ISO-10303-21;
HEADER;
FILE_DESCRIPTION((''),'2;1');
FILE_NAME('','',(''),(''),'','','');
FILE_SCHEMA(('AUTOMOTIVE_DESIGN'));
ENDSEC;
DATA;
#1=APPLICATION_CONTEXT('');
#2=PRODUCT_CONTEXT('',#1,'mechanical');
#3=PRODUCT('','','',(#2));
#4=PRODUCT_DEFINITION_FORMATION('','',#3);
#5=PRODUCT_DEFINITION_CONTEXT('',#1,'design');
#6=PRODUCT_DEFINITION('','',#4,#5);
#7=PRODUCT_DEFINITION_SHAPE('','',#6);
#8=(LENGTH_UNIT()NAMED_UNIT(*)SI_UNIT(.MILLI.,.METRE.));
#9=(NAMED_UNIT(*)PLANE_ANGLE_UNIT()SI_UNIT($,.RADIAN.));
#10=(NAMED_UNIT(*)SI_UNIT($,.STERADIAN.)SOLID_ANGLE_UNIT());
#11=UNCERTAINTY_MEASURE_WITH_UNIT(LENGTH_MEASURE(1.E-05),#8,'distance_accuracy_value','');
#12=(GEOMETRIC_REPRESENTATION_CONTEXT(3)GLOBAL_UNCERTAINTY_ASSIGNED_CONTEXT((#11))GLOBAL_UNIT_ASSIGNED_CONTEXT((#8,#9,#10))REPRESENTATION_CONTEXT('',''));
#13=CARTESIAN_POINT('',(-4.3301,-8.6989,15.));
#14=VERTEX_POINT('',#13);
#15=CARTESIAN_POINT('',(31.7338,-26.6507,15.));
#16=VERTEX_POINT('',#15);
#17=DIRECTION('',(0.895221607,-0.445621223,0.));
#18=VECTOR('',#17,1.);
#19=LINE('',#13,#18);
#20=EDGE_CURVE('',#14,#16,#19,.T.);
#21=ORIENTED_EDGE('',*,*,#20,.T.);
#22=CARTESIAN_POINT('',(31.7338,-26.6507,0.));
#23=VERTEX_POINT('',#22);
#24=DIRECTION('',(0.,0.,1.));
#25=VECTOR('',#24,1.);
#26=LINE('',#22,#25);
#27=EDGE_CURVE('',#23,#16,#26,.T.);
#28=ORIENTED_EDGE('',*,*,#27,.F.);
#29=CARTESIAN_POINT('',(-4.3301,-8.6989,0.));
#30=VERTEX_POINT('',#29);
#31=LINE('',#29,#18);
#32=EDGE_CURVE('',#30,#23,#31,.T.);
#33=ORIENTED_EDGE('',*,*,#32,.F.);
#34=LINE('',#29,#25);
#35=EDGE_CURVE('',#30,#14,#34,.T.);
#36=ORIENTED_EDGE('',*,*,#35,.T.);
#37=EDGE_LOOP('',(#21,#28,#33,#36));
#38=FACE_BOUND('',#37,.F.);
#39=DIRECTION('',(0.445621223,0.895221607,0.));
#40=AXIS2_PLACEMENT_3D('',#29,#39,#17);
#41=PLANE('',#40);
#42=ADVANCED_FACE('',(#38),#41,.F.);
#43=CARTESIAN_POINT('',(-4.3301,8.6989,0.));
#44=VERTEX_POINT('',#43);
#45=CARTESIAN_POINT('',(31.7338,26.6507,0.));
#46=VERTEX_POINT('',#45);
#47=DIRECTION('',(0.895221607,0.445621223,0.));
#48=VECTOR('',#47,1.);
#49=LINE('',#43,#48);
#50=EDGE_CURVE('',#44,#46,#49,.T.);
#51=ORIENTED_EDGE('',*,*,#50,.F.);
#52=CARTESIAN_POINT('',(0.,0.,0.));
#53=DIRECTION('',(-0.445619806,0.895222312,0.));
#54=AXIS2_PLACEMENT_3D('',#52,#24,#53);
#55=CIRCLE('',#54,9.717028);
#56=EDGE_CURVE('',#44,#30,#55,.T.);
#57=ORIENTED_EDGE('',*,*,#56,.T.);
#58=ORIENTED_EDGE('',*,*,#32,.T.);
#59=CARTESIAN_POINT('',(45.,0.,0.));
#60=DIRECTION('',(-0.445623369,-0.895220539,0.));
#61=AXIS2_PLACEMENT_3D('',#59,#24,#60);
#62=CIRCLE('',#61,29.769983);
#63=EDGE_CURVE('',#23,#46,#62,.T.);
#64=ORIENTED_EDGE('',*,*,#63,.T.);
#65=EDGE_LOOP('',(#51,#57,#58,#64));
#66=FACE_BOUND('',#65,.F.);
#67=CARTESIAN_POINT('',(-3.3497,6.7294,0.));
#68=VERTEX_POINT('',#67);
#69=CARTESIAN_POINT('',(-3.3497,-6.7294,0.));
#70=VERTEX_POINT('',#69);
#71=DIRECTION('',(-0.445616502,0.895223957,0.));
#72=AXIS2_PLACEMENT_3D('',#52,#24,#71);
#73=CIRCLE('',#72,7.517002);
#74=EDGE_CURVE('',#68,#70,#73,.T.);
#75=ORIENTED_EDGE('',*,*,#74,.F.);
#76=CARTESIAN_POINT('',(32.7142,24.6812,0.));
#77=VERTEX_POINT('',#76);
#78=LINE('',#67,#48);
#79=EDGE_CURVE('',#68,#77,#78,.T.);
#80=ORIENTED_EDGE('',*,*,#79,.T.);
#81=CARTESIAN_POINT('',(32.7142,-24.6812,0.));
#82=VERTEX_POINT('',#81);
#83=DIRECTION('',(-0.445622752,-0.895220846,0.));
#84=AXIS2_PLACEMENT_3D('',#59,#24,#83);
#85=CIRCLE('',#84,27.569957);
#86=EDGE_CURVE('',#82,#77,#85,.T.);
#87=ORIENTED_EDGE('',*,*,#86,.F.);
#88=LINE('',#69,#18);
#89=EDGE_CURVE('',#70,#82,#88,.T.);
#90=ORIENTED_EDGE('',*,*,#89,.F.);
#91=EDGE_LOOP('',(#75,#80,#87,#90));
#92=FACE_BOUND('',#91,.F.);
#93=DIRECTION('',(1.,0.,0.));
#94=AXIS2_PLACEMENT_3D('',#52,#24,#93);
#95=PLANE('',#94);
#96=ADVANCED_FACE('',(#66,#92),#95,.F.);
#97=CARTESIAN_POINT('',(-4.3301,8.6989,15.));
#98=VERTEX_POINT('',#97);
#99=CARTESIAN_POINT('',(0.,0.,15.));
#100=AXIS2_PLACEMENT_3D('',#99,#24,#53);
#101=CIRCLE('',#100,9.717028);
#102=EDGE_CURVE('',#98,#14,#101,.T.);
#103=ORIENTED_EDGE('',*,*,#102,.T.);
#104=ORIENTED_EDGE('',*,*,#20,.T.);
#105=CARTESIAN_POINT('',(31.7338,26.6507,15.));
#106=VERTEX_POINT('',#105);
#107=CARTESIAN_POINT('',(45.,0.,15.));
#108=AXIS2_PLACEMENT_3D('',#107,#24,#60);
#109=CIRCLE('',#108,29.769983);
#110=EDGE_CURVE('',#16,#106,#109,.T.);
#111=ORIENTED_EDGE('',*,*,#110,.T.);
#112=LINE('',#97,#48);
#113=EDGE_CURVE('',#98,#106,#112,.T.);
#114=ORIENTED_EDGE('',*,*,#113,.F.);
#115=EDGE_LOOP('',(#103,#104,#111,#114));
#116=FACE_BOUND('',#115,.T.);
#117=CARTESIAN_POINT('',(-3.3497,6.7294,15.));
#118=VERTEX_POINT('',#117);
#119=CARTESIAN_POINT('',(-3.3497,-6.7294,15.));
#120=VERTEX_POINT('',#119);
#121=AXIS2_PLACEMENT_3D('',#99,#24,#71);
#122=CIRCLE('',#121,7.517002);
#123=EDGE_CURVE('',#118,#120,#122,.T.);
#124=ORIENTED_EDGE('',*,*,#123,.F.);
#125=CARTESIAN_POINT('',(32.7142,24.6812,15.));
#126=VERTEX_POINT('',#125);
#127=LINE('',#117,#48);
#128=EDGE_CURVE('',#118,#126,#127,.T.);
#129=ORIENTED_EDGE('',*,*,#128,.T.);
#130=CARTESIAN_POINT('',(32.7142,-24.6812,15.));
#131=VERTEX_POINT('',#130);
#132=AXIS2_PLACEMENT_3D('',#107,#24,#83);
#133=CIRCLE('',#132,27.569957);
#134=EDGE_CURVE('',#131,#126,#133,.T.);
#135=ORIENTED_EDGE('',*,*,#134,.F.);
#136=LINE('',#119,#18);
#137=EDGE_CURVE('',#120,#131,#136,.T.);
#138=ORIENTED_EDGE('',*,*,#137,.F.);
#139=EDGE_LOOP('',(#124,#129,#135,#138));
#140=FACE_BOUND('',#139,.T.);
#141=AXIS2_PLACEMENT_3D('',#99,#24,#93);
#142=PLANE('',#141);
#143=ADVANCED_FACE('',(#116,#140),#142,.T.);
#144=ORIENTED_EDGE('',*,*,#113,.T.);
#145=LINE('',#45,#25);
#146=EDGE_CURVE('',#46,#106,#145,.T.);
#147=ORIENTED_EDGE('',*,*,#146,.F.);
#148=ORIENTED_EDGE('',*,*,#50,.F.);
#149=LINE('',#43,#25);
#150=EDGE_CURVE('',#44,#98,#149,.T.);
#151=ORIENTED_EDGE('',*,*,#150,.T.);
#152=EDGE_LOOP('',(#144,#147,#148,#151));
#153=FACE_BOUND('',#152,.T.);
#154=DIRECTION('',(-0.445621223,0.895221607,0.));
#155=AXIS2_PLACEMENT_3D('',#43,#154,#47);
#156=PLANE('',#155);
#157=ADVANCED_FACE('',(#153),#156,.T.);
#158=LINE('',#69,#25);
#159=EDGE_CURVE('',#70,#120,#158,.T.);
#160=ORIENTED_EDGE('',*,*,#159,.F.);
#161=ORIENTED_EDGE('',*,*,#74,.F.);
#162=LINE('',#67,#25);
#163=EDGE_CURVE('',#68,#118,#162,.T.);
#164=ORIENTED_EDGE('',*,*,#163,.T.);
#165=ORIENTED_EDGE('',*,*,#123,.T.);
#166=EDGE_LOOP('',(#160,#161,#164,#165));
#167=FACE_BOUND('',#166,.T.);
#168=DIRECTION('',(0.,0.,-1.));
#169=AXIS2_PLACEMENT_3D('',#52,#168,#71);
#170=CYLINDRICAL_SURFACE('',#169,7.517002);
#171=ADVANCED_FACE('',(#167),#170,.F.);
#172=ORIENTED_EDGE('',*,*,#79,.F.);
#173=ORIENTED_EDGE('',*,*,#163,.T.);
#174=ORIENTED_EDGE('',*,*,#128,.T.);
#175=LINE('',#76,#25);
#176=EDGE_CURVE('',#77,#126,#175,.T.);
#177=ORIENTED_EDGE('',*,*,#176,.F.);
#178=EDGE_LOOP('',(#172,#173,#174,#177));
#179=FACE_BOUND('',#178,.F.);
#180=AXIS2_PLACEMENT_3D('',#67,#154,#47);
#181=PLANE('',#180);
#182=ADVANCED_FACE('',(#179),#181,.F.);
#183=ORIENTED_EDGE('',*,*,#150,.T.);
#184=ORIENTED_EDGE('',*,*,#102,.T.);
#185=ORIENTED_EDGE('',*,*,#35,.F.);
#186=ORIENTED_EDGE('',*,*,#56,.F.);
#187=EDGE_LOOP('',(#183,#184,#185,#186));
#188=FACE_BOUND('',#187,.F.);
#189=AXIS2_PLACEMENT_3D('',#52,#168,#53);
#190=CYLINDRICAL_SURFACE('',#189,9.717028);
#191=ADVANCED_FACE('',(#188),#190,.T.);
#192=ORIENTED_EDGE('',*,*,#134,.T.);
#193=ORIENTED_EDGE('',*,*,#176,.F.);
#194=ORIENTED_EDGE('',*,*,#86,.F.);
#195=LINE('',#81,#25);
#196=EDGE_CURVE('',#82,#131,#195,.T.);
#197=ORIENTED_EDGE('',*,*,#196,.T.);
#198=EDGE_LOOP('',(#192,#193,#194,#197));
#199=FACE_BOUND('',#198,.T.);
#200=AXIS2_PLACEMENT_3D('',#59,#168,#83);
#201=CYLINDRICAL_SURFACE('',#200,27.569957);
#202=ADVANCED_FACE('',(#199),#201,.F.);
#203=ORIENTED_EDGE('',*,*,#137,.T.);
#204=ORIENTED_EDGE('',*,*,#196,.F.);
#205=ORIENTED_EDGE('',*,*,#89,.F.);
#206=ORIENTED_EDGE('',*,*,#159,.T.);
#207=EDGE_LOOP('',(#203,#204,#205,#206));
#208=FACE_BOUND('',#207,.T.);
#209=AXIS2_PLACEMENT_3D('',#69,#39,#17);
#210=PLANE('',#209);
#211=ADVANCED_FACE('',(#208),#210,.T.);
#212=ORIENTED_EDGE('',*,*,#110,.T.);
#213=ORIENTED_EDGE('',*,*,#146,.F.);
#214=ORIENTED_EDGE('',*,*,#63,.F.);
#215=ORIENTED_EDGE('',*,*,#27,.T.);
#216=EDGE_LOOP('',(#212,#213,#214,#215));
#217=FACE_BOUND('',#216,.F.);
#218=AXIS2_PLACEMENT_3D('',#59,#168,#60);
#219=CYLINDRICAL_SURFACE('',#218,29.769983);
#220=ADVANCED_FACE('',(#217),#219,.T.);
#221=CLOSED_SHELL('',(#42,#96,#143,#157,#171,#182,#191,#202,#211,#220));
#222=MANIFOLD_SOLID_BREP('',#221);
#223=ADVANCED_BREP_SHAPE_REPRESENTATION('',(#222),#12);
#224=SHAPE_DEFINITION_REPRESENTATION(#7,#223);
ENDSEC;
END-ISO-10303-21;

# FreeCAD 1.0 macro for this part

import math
import FreeCAD as App
import Part
import Sketcher

V = App.Vector
Q = App.Units.Quantity

doc = App.newDocument("Part")
body = doc.addObject("PartDesign::Body", "Body")

# Sketch on XY plane
sketch1 = body.newObject("Sketcher::SketchObject", "Sketch")
sketch1.AttachmentSupport = (doc.getObject("XY_Plane"), [""])
sketch1.MapMode = "FlatFace"
sketch1.addGeometry(Part.LineSegment(V(32, 27, 0), V(-4, 9, 0)), False)
sketch1.addGeometry(Part.ArcOfCircle(Part.Circle(V(0, 0, 0), V(0, 0, 1), 10), math.radians(116), math.radians(244)), False)
sketch1.addGeometry(Part.LineSegment(V(-4, -9, 0), V(32, -27, 0)), False)
sketch1.addGeometry(Part.ArcOfCircle(Part.Circle(V(45, 0, 0), V(0, 0, 1), 30), math.radians(-116), math.radians(116)), False)
sketch1.addGeometry(Part.ArcOfCircle(Part.Circle(V(0, 0, 0), V(0, 0, 1), 8), math.radians(116), math.radians(244)), False)
sketch1.addGeometry(Part.LineSegment(V(-3, 7, 0), V(33, 25, 0)), False)
sketch1.addGeometry(Part.ArcOfCircle(Part.Circle(V(45, 0, 0), V(0, 0, 1), 28), math.radians(-116), math.radians(116)), False)
sketch1.addGeometry(Part.LineSegment(V(33, -25, 0), V(-3, -7, 0)), False)
sketch1.addConstraint(Sketcher.Constraint("Tangent", 0, 2, 1, 1))
sketch1.addConstraint(Sketcher.Constraint("Tangent", 1, 2, 2, 1))
sketch1.addConstraint(Sketcher.Constraint("Tangent", 2, 2, 3, 1))
sketch1.addConstraint(Sketcher.Constraint("Tangent", 3, 2, 0, 1))
sketch1.addConstraint(Sketcher.Constraint("Tangent", 4, 1, 5, 1))
sketch1.addConstraint(Sketcher.Constraint("Tangent", 5, 2, 6, 2))
sketch1.addConstraint(Sketcher.Constraint("Tangent", 6, 1, 7, 1))
sketch1.addConstraint(Sketcher.Constraint("Tangent", 7, 2, 4, 2))
sketch1.addConstraint(Sketcher.Constraint("Coincident", 1, 3, -1, 1))
sketch1.addConstraint(Sketcher.Constraint("Coincident", 4, 3, -1, 1))
sketch1.addConstraint(Sketcher.Constraint("Coincident", 6, 3, 3, 3))
sketch1.addConstraint(Sketcher.Constraint("PointOnObject", 3, 3, -1))
sketch1.addConstraint(Sketcher.Constraint("Parallel", 0, 5))
sketch1.addConstraint(Sketcher.Constraint("DistanceX", -1, 1, 3, 3, Q("45 mm")))
sketch1.addConstraint(Sketcher.Constraint("Radius", 3, Q("29.77 mm")))
sketch1.addConstraint(Sketcher.Constraint("Radius", 6, Q("27.57 mm")))
sketch1.addConstraint(Sketcher.Constraint("Radius", 1, Q("9.717 mm")))
pad1 = body.newObject("PartDesign::Pad", "Pad")
pad1.Profile = sketch1
pad1.Length = 15

doc.recompute()
